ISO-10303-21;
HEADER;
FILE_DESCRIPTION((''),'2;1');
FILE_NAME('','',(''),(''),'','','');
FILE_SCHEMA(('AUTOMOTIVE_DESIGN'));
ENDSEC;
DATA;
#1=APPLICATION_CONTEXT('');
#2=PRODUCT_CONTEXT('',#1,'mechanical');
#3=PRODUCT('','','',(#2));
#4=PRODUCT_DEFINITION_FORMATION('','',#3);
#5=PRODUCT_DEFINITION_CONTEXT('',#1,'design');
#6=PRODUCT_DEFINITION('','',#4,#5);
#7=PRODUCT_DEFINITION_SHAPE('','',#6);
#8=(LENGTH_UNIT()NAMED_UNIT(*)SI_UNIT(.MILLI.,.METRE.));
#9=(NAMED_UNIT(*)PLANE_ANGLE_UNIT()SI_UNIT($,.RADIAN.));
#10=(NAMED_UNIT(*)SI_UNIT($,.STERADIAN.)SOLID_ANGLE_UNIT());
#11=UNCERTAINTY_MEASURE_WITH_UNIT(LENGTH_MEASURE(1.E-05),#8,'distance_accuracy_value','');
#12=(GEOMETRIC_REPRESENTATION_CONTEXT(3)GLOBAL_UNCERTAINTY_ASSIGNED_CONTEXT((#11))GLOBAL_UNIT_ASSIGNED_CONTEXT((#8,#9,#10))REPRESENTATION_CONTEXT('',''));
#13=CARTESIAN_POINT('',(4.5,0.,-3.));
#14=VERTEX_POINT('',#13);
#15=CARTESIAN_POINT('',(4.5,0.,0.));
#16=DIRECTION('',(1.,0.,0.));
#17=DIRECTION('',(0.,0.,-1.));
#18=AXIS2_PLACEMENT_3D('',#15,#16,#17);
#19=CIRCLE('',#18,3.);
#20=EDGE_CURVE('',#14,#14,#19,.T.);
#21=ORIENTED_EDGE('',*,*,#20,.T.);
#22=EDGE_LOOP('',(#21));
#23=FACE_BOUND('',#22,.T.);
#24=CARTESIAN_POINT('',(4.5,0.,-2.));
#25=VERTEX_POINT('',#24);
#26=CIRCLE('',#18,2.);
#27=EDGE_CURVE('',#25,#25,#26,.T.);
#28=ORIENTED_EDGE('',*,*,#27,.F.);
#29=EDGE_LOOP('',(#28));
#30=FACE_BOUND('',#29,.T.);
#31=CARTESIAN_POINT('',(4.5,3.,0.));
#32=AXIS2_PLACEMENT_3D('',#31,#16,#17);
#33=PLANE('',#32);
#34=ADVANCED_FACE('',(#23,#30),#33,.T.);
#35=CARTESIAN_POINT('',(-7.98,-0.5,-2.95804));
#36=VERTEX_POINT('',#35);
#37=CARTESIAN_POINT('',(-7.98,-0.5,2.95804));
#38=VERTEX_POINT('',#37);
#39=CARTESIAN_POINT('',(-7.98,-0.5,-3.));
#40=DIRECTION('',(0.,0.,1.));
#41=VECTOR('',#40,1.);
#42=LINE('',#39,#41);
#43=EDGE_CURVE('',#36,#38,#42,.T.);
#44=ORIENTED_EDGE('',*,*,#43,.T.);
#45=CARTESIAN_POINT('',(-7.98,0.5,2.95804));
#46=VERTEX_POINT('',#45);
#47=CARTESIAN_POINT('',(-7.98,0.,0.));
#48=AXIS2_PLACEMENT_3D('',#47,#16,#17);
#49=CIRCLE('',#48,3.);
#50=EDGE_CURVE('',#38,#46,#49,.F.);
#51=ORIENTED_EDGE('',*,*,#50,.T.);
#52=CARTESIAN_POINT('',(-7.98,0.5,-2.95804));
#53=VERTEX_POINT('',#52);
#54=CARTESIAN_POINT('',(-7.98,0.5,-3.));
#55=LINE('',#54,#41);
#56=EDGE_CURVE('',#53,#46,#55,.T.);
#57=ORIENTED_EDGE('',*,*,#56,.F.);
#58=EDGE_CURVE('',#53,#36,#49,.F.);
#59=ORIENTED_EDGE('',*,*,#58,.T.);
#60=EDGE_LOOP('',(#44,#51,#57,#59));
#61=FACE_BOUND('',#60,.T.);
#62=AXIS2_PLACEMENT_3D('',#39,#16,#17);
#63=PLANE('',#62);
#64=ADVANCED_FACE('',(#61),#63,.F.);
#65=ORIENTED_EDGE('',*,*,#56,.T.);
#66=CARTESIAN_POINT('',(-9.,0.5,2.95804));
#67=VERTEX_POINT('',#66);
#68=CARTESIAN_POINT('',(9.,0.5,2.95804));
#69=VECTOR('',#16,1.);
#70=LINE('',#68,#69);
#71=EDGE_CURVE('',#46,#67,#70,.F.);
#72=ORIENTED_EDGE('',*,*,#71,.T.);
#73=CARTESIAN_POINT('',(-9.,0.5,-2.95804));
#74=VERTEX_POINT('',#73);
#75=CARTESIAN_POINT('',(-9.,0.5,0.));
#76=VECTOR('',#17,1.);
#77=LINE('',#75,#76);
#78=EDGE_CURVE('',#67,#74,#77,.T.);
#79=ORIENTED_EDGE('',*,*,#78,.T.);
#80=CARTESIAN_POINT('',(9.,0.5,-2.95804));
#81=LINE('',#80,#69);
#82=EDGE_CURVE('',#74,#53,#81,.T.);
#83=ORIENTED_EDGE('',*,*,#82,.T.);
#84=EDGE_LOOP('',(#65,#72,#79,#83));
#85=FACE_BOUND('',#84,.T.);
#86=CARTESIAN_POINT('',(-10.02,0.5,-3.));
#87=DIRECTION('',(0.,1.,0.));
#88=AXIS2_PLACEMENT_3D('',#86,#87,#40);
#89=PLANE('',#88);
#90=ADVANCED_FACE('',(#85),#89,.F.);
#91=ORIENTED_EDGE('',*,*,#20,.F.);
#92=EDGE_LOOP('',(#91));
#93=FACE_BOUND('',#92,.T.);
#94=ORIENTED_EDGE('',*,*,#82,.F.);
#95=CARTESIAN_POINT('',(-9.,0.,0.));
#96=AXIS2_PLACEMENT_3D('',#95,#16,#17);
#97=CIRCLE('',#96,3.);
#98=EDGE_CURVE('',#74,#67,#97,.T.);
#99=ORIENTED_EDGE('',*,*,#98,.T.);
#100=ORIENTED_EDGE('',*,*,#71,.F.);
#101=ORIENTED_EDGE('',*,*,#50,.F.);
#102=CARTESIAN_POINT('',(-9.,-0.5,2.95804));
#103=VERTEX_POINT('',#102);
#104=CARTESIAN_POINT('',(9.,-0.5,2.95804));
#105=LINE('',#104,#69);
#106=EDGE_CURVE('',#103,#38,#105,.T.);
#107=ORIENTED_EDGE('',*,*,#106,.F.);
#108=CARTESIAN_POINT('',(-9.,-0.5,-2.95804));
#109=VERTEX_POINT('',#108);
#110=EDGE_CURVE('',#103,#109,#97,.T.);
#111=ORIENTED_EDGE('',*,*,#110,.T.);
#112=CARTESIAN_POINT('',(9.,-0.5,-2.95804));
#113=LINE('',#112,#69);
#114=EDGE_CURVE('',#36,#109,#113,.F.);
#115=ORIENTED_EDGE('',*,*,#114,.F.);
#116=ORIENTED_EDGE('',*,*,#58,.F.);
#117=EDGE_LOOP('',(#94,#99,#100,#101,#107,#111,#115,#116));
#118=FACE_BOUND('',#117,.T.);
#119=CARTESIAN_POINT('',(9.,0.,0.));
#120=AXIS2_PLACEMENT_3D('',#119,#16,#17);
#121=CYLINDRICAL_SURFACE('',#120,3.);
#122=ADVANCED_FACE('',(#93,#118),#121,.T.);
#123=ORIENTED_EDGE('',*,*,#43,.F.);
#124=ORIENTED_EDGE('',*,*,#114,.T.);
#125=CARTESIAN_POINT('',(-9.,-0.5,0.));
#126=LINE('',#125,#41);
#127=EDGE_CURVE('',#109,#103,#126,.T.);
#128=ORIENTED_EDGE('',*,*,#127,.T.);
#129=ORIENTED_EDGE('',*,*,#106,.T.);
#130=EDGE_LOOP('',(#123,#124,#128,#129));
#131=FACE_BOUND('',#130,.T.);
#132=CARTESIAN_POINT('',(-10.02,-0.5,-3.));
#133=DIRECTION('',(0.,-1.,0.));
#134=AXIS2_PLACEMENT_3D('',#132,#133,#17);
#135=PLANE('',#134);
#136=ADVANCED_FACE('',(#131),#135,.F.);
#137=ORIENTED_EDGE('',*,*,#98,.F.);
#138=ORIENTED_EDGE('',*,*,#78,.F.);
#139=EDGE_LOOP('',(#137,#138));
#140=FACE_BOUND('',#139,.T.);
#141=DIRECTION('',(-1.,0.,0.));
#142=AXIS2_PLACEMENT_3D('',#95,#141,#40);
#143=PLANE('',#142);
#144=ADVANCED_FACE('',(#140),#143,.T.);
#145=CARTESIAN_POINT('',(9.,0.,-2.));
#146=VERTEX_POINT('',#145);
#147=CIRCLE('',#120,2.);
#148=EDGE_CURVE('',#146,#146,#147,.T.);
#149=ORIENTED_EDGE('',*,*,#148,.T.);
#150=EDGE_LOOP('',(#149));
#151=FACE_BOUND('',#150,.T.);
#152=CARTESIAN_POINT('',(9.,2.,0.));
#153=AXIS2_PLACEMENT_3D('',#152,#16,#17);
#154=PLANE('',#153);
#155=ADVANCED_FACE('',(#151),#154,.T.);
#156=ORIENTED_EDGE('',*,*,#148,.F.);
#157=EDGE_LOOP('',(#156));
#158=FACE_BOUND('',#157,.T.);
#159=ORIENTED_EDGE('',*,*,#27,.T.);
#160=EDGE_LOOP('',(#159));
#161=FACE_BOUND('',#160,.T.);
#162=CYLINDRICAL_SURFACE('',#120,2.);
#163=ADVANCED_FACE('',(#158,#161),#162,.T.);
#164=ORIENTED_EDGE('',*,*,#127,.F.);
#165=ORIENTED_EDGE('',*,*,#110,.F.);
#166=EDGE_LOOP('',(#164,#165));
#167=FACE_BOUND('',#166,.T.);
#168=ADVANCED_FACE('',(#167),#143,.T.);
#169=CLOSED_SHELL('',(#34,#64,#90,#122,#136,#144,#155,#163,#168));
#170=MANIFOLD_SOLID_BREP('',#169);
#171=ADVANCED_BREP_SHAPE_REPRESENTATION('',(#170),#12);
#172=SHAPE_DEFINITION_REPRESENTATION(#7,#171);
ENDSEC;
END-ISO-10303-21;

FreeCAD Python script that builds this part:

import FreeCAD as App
import Part
import Sketcher

V = App.Vector

doc = App.newDocument("Part")
params = doc.addObject("Spreadsheet::Sheet", "Params")
for row, (alias, value) in enumerate([
    ("sketch1_width", "18 mm"),
    ("sketch1_height", "2 mm"),
    ("sketch1_height2", "1 mm"),
    ("sketch1_width2", "4.5 mm"),
    ("revolution_angle", "360 deg"),
    ("sketch2_height", "1 mm"),
    ("sketch2_width", "2.04 mm"),
], start=1):
    params.set(f"A{row}", alias)
    params.set(f"B{row}", "=" + value)
    params.setAlias(f"B{row}", alias)

body = doc.addObject("PartDesign::Body", "Body")

# Sketch on XY plane
sketch1 = body.newObject("Sketcher::SketchObject", "Sketch")
sketch1.AttachmentSupport = (doc.getObject("XY_Plane"), [""])
sketch1.MapMode = "FlatFace"
sketch1.addGeometry([
    Part.LineSegment(V(-9, 0, 0), V(9, 0, 0)),  # 0
    Part.LineSegment(V(9, 0, 0), V(9, 2, 0)),  # 1
    Part.LineSegment(V(9, 2, 0), V(4.5, 2, 0)),  # 2
    Part.LineSegment(V(4.5, 2, 0), V(4.5, 3, 0)),  # 3
    Part.LineSegment(V(4.5, 3, 0), V(-9, 3, 0)),  # 4
    Part.LineSegment(V(-9, 3, 0), V(-9, 0, 0)),  # 5
], False)
sketch1.addConstraint([
    Sketcher.Constraint("Coincident", 0, 2, 1, 1),
    Sketcher.Constraint("Coincident", 1, 2, 2, 1),
    Sketcher.Constraint("Coincident", 2, 2, 3, 1),
    Sketcher.Constraint("Coincident", 3, 2, 4, 1),
    Sketcher.Constraint("Coincident", 4, 2, 5, 1),
    Sketcher.Constraint("Coincident", 5, 2, 0, 1),
    Sketcher.Constraint("Horizontal", 0),
    Sketcher.Constraint("Vertical", 1),
    Sketcher.Constraint("Horizontal", 2),
    Sketcher.Constraint("Vertical", 3),
    Sketcher.Constraint("Horizontal", 4),
    Sketcher.Constraint("Vertical", 5),
    Sketcher.Constraint("Symmetric", 0, 2, 5, 2, -1, 1),
    Sketcher.Constraint("DistanceX", 0, 1, 0, 2, 18.0),
    Sketcher.Constraint("DistanceY", 1, 1, 1, 2, 2.0),
    Sketcher.Constraint("DistanceY", 3, 1, 3, 2, 1.0),
    Sketcher.Constraint("DistanceX", 2, 2, 2, 1, 4.5),
])
sketch1.setExpression("Constraints[13]", "Params.sketch1_width")
sketch1.setExpression("Constraints[14]", "Params.sketch1_height")
sketch1.setExpression("Constraints[15]", "Params.sketch1_height2")
sketch1.setExpression("Constraints[16]", "Params.sketch1_width2")
revolution = body.newObject("PartDesign::Revolution", "Revolution")
revolution.Profile = sketch1
revolution.ReferenceAxis = (sketch1, ["H_Axis"])
revolution.setExpression("Angle", "Params.revolution_angle")

# Sketch on XY plane
sketch2 = body.newObject("Sketcher::SketchObject", "Sketch001")
sketch2.AttachmentSupport = (doc.getObject("XY_Plane"), [""])
sketch2.MapMode = "FlatFace"
sketch2.addGeometry([
    Part.LineSegment(V(-10, 0.5, 0), V(-10, -0.5, 0)),
    Part.LineSegment(V(-10, -0.5, 0), V(-8, -0.5, 0)),
    Part.LineSegment(V(-8, -0.5, 0), V(-8, 0.5, 0)),
    Part.LineSegment(V(-8, 0.5, 0), V(-10, 0.5, 0)),
], False)
sketch2.addConstraint([
    Sketcher.Constraint("Coincident", 0, 2, 1, 1),
    Sketcher.Constraint("Coincident", 1, 2, 2, 1),
    Sketcher.Constraint("Coincident", 2, 2, 3, 1),
    Sketcher.Constraint("Coincident", 3, 2, 0, 1),
    Sketcher.Constraint("Vertical", 0),
    Sketcher.Constraint("Horizontal", 1),
    Sketcher.Constraint("Vertical", 2),
    Sketcher.Constraint("Horizontal", 3),
    Sketcher.Constraint("DistanceY", 0, 2, 0, 1, 1.0),
    Sketcher.Constraint("DistanceX", 1, 1, 1, 2, 2.04),
    Sketcher.Constraint("DistanceY", 0, 2, -1, 1, 0.5),
    Sketcher.Constraint("DistanceX", 0, 2, -1, 1, 10.02),
])
sketch2.setExpression("Constraints[8]", "Params.sketch2_height")
sketch2.setExpression("Constraints[9]", "Params.sketch2_width")
pocket1 = body.newObject("PartDesign::Pocket", "Pocket")
pocket1.Profile = sketch2
pocket1.Type = "ThroughAll"
pocket1.Midplane = True

doc.recompute()
